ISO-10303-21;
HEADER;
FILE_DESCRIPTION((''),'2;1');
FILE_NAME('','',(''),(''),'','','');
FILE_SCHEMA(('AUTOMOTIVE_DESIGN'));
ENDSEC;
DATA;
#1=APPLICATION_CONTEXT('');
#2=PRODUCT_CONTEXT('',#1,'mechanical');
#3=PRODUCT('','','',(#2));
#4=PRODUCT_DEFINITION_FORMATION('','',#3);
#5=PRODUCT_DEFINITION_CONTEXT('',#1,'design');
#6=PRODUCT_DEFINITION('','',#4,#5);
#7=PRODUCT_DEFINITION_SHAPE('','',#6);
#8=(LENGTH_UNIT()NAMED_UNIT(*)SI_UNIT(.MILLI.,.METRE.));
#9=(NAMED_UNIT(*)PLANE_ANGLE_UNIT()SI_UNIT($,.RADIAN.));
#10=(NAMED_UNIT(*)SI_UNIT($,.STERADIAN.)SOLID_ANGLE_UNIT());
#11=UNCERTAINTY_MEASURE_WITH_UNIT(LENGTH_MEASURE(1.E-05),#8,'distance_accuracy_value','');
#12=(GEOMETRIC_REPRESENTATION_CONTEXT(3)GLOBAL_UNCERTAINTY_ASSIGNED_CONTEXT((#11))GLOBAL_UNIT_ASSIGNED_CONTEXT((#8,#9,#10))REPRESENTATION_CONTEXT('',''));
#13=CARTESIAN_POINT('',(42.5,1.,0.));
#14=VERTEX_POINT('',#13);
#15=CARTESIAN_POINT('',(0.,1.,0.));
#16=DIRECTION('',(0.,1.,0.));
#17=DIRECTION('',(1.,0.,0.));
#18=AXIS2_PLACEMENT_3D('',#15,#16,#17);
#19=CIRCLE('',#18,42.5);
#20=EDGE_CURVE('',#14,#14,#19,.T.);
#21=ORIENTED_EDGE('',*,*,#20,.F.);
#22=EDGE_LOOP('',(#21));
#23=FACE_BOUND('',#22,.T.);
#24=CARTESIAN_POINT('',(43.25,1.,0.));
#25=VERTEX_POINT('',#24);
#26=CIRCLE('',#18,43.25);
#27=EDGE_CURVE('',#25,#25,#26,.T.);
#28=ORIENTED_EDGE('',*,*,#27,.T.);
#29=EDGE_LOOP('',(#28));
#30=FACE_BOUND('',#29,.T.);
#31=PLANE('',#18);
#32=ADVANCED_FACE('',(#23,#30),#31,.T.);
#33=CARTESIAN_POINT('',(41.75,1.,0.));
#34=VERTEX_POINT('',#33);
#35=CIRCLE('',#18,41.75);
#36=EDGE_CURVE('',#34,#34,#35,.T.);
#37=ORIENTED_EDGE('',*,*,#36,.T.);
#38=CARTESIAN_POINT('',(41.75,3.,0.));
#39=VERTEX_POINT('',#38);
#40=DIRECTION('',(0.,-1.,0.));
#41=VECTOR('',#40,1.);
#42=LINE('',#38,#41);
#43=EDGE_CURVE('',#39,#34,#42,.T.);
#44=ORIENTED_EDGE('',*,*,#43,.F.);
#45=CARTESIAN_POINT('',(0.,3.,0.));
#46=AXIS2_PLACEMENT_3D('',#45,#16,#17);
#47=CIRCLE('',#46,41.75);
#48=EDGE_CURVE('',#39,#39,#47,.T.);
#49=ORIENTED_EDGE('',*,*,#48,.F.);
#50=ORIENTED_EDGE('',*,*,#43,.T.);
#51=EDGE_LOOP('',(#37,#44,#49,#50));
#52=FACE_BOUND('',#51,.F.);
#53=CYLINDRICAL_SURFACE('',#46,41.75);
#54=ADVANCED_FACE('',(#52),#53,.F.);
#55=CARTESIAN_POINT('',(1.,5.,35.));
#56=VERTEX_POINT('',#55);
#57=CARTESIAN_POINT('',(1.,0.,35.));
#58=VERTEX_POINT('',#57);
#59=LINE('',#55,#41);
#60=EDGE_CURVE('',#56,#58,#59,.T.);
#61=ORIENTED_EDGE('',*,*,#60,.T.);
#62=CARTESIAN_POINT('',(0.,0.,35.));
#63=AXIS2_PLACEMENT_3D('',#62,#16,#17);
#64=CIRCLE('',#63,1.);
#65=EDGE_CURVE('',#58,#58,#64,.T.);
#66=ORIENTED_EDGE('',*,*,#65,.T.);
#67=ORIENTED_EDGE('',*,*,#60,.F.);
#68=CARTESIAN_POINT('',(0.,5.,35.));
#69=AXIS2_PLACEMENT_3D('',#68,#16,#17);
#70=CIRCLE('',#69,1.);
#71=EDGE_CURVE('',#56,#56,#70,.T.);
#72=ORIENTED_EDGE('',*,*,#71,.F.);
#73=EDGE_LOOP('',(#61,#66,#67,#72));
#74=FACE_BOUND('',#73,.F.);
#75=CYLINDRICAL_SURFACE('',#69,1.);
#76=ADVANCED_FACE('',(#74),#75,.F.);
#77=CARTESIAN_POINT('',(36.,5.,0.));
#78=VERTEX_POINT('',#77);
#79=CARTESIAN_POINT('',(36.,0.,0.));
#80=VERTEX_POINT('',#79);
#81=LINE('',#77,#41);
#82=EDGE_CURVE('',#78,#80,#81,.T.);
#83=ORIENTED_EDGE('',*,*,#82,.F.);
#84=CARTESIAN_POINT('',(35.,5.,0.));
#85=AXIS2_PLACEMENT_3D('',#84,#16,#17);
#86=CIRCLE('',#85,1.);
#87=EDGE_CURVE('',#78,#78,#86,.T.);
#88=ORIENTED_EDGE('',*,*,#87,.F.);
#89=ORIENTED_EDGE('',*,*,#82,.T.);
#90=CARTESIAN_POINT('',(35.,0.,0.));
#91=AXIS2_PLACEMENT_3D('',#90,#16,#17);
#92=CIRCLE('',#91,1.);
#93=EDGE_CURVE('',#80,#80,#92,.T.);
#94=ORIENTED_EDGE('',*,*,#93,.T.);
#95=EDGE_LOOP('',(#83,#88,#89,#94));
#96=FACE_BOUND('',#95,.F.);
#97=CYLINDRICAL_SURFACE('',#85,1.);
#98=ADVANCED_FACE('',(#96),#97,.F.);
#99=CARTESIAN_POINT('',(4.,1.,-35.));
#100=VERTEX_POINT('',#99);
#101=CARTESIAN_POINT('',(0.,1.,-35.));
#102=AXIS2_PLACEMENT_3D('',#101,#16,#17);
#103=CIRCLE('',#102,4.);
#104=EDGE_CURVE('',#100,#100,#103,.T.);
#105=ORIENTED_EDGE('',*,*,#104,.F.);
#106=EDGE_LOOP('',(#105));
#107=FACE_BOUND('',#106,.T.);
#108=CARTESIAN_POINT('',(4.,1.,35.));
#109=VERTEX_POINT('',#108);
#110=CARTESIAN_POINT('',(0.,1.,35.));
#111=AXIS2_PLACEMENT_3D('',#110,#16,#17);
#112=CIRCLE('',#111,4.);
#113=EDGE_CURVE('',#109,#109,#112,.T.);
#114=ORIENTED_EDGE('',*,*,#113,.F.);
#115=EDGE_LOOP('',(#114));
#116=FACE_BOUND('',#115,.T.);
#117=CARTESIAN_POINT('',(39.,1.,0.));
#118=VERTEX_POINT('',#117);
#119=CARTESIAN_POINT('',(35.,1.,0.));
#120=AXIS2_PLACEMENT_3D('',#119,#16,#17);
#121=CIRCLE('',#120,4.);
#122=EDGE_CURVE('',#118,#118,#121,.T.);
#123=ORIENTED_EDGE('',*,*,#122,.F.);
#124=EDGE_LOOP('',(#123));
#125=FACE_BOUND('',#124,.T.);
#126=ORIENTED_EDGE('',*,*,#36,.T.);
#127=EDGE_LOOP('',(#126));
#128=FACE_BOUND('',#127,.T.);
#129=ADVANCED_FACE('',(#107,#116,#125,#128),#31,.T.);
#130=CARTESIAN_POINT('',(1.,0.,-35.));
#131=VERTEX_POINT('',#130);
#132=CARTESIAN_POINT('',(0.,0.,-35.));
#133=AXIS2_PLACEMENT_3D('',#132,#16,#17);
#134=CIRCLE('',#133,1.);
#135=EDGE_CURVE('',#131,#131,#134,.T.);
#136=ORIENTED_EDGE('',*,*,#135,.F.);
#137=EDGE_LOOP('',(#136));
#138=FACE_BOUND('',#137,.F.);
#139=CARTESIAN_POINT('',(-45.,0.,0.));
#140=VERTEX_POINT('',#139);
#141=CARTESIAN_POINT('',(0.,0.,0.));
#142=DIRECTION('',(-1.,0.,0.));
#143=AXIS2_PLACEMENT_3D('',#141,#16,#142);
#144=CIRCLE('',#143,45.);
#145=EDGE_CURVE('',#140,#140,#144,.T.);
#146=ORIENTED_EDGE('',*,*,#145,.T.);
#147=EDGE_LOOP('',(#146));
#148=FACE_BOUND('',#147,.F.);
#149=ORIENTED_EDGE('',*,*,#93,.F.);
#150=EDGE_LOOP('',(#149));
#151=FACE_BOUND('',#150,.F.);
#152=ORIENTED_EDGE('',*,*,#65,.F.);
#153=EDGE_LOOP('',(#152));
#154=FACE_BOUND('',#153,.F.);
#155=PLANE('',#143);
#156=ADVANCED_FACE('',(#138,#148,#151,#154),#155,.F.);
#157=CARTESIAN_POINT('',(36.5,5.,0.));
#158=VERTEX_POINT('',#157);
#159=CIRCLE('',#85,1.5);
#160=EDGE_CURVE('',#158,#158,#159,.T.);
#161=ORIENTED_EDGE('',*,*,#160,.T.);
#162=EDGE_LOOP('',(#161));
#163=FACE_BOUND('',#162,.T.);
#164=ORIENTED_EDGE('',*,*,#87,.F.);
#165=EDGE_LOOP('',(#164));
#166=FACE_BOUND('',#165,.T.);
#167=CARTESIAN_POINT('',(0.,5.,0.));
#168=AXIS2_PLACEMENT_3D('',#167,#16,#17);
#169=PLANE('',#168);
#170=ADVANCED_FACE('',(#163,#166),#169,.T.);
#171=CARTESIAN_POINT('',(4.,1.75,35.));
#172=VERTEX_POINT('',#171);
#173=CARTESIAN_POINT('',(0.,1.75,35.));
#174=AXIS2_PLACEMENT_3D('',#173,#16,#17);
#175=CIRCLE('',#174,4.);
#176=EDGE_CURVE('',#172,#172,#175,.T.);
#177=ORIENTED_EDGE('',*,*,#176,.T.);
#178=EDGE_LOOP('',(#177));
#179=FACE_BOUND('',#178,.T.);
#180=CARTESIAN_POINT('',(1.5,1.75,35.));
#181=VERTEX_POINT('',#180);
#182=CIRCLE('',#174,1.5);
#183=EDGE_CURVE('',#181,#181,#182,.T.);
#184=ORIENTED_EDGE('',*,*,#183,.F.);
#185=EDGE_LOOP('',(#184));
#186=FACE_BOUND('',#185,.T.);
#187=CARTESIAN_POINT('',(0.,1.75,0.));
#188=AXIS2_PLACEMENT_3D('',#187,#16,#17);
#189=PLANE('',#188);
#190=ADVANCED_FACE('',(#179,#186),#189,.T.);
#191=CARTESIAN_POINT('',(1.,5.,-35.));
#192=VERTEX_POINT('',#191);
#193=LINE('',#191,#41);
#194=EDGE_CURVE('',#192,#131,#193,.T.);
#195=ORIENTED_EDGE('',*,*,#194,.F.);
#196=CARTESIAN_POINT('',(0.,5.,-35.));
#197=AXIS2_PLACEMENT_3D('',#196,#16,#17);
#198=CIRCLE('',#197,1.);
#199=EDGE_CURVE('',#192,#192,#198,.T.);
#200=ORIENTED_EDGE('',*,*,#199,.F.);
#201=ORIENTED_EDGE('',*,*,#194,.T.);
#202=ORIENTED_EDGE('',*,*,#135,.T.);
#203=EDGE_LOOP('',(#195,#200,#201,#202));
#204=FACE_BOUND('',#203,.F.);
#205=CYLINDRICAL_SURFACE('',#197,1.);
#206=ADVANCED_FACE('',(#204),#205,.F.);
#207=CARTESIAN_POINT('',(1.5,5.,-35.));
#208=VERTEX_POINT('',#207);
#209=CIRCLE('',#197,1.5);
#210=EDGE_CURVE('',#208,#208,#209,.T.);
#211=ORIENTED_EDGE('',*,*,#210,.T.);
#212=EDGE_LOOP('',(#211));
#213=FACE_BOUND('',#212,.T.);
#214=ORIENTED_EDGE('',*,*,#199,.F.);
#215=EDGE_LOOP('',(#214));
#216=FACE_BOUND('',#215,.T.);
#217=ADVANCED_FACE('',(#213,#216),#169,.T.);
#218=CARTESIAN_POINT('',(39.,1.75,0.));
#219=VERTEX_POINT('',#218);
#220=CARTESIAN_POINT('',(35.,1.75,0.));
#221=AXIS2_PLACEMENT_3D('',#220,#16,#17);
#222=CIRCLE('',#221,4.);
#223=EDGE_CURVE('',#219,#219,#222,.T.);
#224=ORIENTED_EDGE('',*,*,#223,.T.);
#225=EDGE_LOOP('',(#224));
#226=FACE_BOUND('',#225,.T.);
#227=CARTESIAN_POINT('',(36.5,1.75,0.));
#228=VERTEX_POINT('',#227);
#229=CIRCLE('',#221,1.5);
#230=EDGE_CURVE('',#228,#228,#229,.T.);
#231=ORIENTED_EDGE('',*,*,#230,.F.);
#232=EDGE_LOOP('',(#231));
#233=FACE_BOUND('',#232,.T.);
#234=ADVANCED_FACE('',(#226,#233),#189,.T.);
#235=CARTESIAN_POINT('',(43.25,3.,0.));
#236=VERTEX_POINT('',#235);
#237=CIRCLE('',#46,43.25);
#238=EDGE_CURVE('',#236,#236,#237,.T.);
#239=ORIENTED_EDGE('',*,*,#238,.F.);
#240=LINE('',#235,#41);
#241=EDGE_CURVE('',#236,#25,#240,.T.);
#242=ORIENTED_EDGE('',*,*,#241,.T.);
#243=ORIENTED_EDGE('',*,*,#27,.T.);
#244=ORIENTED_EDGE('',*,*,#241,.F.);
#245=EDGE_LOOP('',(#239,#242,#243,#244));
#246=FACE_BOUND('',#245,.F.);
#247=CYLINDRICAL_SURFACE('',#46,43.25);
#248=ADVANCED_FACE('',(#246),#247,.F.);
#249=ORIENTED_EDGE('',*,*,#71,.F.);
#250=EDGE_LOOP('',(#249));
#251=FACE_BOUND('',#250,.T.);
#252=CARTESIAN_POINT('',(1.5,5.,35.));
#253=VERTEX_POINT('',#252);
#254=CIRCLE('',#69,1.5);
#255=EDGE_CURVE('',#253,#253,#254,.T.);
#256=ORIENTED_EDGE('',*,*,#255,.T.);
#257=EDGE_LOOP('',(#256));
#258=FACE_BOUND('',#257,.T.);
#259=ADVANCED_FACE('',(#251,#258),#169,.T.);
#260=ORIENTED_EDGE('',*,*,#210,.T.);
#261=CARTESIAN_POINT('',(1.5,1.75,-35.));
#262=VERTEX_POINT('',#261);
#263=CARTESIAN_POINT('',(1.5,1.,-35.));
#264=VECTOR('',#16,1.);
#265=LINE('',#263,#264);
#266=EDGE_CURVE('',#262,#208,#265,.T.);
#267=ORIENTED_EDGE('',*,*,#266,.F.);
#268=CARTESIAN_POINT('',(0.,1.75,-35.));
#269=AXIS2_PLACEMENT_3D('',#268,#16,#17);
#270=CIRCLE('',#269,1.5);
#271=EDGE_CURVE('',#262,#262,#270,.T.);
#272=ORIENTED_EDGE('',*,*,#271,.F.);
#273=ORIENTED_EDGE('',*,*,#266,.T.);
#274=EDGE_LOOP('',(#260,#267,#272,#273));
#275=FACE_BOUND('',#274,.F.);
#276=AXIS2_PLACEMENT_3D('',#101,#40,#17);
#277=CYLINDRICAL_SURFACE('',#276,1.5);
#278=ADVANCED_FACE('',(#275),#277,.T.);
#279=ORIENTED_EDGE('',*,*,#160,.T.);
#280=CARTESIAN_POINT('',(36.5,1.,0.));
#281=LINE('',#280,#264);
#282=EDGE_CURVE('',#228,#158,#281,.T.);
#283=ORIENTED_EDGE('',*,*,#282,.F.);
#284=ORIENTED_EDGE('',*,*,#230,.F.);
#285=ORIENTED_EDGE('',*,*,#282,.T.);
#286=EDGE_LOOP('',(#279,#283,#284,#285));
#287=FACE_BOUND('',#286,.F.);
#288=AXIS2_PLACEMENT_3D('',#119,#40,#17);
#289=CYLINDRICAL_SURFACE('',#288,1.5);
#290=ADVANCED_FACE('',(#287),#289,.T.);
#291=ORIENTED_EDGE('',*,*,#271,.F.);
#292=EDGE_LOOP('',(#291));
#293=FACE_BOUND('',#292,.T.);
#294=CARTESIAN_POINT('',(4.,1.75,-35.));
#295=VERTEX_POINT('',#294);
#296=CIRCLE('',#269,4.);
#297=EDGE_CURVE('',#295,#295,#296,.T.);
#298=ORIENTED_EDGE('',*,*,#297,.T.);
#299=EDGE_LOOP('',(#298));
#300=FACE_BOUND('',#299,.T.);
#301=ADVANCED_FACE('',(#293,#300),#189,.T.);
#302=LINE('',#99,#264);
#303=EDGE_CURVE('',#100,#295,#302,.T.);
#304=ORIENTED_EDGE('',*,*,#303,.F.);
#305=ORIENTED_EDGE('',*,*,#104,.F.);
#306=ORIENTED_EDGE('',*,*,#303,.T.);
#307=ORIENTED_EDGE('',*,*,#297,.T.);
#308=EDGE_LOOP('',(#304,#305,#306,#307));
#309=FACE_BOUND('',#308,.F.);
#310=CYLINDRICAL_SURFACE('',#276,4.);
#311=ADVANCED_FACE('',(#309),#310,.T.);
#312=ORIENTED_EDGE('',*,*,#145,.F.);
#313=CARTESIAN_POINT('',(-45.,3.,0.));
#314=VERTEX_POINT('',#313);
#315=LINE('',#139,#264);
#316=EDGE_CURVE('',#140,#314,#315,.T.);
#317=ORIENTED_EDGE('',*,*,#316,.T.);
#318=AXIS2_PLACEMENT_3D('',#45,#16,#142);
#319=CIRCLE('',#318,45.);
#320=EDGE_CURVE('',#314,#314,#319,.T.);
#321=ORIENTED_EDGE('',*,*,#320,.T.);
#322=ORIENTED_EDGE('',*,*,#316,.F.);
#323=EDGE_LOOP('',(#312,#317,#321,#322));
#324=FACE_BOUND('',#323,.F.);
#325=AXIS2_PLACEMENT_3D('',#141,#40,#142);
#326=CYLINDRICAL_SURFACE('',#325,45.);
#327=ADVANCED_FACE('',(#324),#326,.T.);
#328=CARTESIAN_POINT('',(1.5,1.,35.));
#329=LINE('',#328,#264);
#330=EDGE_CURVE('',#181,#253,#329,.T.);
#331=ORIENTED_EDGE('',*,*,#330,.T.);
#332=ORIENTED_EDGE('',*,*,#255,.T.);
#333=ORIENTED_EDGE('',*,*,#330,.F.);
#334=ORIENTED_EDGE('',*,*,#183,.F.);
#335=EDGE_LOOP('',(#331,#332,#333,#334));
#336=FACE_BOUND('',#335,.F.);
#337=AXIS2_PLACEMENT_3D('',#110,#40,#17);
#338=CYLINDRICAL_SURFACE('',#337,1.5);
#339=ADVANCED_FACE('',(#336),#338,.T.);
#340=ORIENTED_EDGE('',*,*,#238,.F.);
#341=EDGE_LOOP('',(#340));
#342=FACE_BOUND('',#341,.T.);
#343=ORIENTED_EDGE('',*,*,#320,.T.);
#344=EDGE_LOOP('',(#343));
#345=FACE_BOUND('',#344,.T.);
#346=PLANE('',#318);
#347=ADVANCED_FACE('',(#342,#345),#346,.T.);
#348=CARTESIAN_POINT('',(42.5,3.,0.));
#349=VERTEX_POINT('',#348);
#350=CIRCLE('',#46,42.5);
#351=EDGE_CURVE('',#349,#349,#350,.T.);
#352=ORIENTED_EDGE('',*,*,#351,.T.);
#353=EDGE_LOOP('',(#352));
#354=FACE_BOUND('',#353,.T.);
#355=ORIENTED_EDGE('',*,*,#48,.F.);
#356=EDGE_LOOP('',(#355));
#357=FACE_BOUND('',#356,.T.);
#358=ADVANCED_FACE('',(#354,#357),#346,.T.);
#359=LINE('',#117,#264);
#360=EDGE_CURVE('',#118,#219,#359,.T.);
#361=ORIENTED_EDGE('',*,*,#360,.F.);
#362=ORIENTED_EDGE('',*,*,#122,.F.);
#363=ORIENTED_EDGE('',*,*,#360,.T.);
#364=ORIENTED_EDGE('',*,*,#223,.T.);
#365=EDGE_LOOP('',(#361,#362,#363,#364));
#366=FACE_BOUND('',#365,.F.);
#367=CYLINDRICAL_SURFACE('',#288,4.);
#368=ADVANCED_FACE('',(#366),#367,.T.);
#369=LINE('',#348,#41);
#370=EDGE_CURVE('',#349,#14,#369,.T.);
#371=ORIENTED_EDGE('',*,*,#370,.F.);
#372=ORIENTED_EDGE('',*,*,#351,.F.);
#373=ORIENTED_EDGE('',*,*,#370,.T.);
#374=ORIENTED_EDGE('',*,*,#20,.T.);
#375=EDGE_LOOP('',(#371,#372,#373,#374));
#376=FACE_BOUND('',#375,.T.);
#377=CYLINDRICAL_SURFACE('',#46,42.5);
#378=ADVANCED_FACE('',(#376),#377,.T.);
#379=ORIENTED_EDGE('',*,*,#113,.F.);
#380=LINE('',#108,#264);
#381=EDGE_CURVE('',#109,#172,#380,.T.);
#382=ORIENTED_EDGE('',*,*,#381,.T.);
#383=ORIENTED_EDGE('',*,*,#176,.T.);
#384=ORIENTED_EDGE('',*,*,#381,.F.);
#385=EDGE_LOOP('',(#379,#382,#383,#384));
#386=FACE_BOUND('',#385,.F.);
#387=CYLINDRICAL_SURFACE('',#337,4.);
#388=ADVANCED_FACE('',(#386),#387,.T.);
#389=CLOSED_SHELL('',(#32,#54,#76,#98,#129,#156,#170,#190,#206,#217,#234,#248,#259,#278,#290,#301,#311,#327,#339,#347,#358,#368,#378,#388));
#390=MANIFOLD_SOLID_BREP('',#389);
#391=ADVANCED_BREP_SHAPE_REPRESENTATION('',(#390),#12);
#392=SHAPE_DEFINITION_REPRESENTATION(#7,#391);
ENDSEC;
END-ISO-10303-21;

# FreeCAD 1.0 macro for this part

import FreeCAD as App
import Part
import Sketcher
Q = App.Units.Quantity

doc = App.newDocument("Part")
body = doc.addObject("PartDesign::Body", "Body")

# Sketch on XZ plane
sketch1 = body.newObject("Sketcher::SketchObject", "Sketch")
sketch1.AttachmentSupport = (doc.getObject("XZ_Plane"), [""])
sketch1.MapMode = "FlatFace"
sketch1.addGeometry(Part.Circle(App.Vector(0, 0, 0), App.Vector(0, 0, 1), 45), False)
sketch1.addConstraint([
    Sketcher.Constraint("Coincident", 0, 3, -1, 1),
    Sketcher.Constraint("Diameter", 0, Q("90 mm")),
])
pad1 = body.newObject("PartDesign::Pad", "Pad")
pad1.Profile = sketch1
pad1.Length = 3
pad1.Reversed = True

# Sketch on XZ plane
sketch2 = body.newObject("Sketcher::SketchObject", "Sketch001")
sketch2.AttachmentSupport = (doc.getObject("XZ_Plane"), [""])
sketch2.MapMode = "FlatFace"
sketch2.AttachmentOffset = App.Placement(App.Vector(0, 0, -3), App.Rotation())
sketch2.addGeometry(Part.Circle(App.Vector(0, 0, 0), App.Vector(0, 0, 1), 42), False)
sketch2.addConstraint([
    Sketcher.Constraint("Coincident", 0, 3, -1, 1),
    Sketcher.Constraint("Diameter", 0, Q("83.5 mm")),
])
pocket1 = body.newObject("PartDesign::Pocket", "Pocket")
pocket1.Profile = sketch2
pocket1.Length = 2
pocket1.Reversed = True

# Sketch on XZ plane
sketch3 = body.newObject("Sketcher::SketchObject", "Sketch002")
sketch3.AttachmentSupport = (doc.getObject("XZ_Plane"), [""])
sketch3.MapMode = "FlatFace"
sketch3.AttachmentOffset = App.Placement(App.Vector(0, 0, -3), App.Rotation())
sketch3.addGeometry([
    Part.Circle(App.Vector(0, 0, 0), App.Vector(0, 0, 1), 43),
    Part.Circle(App.Vector(0, 0, 0), App.Vector(0, 0, 1), 42),
], False)
sketch3.addConstraint([
    Sketcher.Constraint("Coincident", 0, 3, -1, 1),
    Sketcher.Constraint("Coincident", 1, 3, -1, 1),
    Sketcher.Constraint("Diameter", 1, Q("85 mm")),
    Sketcher.Constraint("Diameter", 0, Q("86.5 mm")),
])
pocket2 = body.newObject("PartDesign::Pocket", "Pocket001")
pocket2.Profile = sketch3
pocket2.Length = 2
pocket2.Reversed = True

# Sketch on XZ plane
sketch4 = body.newObject("Sketcher::SketchObject", "Sketch003")
sketch4.AttachmentSupport = (doc.getObject("XZ_Plane"), [""])
sketch4.MapMode = "FlatFace"
sketch4.AttachmentOffset = App.Placement(App.Vector(0, 0, -1), App.Rotation())
sketch4.addGeometry([
    Part.Circle(App.Vector(0, -35, 0), App.Vector(0, 0, 1), 4),  # 0
    Part.Circle(App.Vector(0, -35, 0), App.Vector(0, 0, 1), 1.5),  # 1
    Part.Circle(App.Vector(35, 0, 0), App.Vector(0, 0, 1), 4),  # 2
    Part.Circle(App.Vector(35, 0, 0), App.Vector(0, 0, 1), 1.5),  # 3
    Part.Circle(App.Vector(0, 35, 0), App.Vector(0, 0, 1), 4),  # 4
    Part.Circle(App.Vector(0, 35, 0), App.Vector(0, 0, 1), 1.5),  # 5
], False)
sketch4.addConstraint([
    Sketcher.Constraint("Coincident", 1, 3, 0, 3),
    Sketcher.Constraint("Coincident", 3, 3, 2, 3),
    Sketcher.Constraint("Coincident", 5, 3, 4, 3),
    Sketcher.Constraint("Equal", 0, 2),
    Sketcher.Constraint("Equal", 1, 3),
    Sketcher.Constraint("Equal", 2, 4),
    Sketcher.Constraint("Equal", 3, 5),
    Sketcher.Constraint("Symmetric", 0, 3, 4, 3, -1, 1),
    Sketcher.Constraint("PointOnObject", 0, 3, -2),
    Sketcher.Constraint("PointOnObject", 2, 3, -1),
    Sketcher.Constraint("Diameter", 1, Q("3 mm")),
    Sketcher.Constraint("Diameter", 0, Q("8 mm")),
    Sketcher.Constraint("DistanceY", 0, 3, -1, 1, Q("35 mm")),
    Sketcher.Constraint("DistanceX", -1, 1, 2, 3, Q("35 mm")),
])
pad2 = body.newObject("PartDesign::Pad", "Pad001")
pad2.Profile = sketch4
pad2.Length = 0.75
pad2.Reversed = True

# Sketch on XZ plane
sketch5 = body.newObject("Sketcher::SketchObject", "Sketch004")
sketch5.AttachmentSupport = (doc.getObject("XZ_Plane"), [""])
sketch5.MapMode = "FlatFace"
sketch5.AttachmentOffset = App.Placement(App.Vector(0, 0, -1), App.Rotation())
sketch5.addGeometry([
    Part.Circle(App.Vector(0, -35, 0), App.Vector(0, 0, 1), 1.5),
    Part.Circle(App.Vector(35, 0, 0), App.Vector(0, 0, 1), 1.5),
    Part.Circle(App.Vector(0, 35, 0), App.Vector(0, 0, 1), 1.5),
], False)
sketch5.addConstraint([
    Sketcher.Constraint("Equal", 0, 1),
    Sketcher.Constraint("Equal", 1, 2),
    Sketcher.Constraint("Symmetric", 0, 3, 2, 3, -1, 1),
    Sketcher.Constraint("PointOnObject", 0, 3, -2),
    Sketcher.Constraint("PointOnObject", 1, 3, -1),
    Sketcher.Constraint("Diameter", 0, Q("3 mm")),
    Sketcher.Constraint("DistanceY", 0, 3, -1, 1, Q("35 mm")),
    Sketcher.Constraint("DistanceX", -1, 1, 1, 3, Q("35 mm")),
])
pad3 = body.newObject("PartDesign::Pad", "Pad002")
pad3.Profile = sketch5
pad3.Length = 4
pad3.Reversed = True

# Sketch on XZ plane
sketch6 = body.newObject("Sketcher::SketchObject", "Sketch005")
sketch6.AttachmentSupport = (doc.getObject("XZ_Plane"), [""])
sketch6.MapMode = "FlatFace"
sketch6.AttachmentOffset = App.Placement(App.Vector(0, 0, -5), App.Rotation())
sketch6.addGeometry([
    Part.Circle(App.Vector(0, -35, 0), App.Vector(0, 0, 1), 1),
    Part.Circle(App.Vector(35, 0, 0), App.Vector(0, 0, 1), 1),
    Part.Circle(App.Vector(0, 35, 0), App.Vector(0, 0, 1), 1),
], False)
sketch6.addConstraint([
    Sketcher.Constraint("Equal", 0, 1),
    Sketcher.Constraint("Equal", 1, 2),
    Sketcher.Constraint("Symmetric", 0, 3, 2, 3, -1, 1),
    Sketcher.Constraint("PointOnObject", 0, 3, -2),
    Sketcher.Constraint("PointOnObject", 1, 3, -1),
    Sketcher.Constraint("Diameter", 0, Q("2 mm")),
    Sketcher.Constraint("DistanceY", 0, 3, -1, 1, Q("35 mm")),
    Sketcher.Constraint("DistanceX", -1, 1, 1, 3, Q("35 mm")),
])
pocket3 = body.newObject("PartDesign::Pocket", "Pocket002")
pocket3.Profile = sketch6
pocket3.Type = "ThroughAll"
pocket3.Reversed = True

doc.recompute()
